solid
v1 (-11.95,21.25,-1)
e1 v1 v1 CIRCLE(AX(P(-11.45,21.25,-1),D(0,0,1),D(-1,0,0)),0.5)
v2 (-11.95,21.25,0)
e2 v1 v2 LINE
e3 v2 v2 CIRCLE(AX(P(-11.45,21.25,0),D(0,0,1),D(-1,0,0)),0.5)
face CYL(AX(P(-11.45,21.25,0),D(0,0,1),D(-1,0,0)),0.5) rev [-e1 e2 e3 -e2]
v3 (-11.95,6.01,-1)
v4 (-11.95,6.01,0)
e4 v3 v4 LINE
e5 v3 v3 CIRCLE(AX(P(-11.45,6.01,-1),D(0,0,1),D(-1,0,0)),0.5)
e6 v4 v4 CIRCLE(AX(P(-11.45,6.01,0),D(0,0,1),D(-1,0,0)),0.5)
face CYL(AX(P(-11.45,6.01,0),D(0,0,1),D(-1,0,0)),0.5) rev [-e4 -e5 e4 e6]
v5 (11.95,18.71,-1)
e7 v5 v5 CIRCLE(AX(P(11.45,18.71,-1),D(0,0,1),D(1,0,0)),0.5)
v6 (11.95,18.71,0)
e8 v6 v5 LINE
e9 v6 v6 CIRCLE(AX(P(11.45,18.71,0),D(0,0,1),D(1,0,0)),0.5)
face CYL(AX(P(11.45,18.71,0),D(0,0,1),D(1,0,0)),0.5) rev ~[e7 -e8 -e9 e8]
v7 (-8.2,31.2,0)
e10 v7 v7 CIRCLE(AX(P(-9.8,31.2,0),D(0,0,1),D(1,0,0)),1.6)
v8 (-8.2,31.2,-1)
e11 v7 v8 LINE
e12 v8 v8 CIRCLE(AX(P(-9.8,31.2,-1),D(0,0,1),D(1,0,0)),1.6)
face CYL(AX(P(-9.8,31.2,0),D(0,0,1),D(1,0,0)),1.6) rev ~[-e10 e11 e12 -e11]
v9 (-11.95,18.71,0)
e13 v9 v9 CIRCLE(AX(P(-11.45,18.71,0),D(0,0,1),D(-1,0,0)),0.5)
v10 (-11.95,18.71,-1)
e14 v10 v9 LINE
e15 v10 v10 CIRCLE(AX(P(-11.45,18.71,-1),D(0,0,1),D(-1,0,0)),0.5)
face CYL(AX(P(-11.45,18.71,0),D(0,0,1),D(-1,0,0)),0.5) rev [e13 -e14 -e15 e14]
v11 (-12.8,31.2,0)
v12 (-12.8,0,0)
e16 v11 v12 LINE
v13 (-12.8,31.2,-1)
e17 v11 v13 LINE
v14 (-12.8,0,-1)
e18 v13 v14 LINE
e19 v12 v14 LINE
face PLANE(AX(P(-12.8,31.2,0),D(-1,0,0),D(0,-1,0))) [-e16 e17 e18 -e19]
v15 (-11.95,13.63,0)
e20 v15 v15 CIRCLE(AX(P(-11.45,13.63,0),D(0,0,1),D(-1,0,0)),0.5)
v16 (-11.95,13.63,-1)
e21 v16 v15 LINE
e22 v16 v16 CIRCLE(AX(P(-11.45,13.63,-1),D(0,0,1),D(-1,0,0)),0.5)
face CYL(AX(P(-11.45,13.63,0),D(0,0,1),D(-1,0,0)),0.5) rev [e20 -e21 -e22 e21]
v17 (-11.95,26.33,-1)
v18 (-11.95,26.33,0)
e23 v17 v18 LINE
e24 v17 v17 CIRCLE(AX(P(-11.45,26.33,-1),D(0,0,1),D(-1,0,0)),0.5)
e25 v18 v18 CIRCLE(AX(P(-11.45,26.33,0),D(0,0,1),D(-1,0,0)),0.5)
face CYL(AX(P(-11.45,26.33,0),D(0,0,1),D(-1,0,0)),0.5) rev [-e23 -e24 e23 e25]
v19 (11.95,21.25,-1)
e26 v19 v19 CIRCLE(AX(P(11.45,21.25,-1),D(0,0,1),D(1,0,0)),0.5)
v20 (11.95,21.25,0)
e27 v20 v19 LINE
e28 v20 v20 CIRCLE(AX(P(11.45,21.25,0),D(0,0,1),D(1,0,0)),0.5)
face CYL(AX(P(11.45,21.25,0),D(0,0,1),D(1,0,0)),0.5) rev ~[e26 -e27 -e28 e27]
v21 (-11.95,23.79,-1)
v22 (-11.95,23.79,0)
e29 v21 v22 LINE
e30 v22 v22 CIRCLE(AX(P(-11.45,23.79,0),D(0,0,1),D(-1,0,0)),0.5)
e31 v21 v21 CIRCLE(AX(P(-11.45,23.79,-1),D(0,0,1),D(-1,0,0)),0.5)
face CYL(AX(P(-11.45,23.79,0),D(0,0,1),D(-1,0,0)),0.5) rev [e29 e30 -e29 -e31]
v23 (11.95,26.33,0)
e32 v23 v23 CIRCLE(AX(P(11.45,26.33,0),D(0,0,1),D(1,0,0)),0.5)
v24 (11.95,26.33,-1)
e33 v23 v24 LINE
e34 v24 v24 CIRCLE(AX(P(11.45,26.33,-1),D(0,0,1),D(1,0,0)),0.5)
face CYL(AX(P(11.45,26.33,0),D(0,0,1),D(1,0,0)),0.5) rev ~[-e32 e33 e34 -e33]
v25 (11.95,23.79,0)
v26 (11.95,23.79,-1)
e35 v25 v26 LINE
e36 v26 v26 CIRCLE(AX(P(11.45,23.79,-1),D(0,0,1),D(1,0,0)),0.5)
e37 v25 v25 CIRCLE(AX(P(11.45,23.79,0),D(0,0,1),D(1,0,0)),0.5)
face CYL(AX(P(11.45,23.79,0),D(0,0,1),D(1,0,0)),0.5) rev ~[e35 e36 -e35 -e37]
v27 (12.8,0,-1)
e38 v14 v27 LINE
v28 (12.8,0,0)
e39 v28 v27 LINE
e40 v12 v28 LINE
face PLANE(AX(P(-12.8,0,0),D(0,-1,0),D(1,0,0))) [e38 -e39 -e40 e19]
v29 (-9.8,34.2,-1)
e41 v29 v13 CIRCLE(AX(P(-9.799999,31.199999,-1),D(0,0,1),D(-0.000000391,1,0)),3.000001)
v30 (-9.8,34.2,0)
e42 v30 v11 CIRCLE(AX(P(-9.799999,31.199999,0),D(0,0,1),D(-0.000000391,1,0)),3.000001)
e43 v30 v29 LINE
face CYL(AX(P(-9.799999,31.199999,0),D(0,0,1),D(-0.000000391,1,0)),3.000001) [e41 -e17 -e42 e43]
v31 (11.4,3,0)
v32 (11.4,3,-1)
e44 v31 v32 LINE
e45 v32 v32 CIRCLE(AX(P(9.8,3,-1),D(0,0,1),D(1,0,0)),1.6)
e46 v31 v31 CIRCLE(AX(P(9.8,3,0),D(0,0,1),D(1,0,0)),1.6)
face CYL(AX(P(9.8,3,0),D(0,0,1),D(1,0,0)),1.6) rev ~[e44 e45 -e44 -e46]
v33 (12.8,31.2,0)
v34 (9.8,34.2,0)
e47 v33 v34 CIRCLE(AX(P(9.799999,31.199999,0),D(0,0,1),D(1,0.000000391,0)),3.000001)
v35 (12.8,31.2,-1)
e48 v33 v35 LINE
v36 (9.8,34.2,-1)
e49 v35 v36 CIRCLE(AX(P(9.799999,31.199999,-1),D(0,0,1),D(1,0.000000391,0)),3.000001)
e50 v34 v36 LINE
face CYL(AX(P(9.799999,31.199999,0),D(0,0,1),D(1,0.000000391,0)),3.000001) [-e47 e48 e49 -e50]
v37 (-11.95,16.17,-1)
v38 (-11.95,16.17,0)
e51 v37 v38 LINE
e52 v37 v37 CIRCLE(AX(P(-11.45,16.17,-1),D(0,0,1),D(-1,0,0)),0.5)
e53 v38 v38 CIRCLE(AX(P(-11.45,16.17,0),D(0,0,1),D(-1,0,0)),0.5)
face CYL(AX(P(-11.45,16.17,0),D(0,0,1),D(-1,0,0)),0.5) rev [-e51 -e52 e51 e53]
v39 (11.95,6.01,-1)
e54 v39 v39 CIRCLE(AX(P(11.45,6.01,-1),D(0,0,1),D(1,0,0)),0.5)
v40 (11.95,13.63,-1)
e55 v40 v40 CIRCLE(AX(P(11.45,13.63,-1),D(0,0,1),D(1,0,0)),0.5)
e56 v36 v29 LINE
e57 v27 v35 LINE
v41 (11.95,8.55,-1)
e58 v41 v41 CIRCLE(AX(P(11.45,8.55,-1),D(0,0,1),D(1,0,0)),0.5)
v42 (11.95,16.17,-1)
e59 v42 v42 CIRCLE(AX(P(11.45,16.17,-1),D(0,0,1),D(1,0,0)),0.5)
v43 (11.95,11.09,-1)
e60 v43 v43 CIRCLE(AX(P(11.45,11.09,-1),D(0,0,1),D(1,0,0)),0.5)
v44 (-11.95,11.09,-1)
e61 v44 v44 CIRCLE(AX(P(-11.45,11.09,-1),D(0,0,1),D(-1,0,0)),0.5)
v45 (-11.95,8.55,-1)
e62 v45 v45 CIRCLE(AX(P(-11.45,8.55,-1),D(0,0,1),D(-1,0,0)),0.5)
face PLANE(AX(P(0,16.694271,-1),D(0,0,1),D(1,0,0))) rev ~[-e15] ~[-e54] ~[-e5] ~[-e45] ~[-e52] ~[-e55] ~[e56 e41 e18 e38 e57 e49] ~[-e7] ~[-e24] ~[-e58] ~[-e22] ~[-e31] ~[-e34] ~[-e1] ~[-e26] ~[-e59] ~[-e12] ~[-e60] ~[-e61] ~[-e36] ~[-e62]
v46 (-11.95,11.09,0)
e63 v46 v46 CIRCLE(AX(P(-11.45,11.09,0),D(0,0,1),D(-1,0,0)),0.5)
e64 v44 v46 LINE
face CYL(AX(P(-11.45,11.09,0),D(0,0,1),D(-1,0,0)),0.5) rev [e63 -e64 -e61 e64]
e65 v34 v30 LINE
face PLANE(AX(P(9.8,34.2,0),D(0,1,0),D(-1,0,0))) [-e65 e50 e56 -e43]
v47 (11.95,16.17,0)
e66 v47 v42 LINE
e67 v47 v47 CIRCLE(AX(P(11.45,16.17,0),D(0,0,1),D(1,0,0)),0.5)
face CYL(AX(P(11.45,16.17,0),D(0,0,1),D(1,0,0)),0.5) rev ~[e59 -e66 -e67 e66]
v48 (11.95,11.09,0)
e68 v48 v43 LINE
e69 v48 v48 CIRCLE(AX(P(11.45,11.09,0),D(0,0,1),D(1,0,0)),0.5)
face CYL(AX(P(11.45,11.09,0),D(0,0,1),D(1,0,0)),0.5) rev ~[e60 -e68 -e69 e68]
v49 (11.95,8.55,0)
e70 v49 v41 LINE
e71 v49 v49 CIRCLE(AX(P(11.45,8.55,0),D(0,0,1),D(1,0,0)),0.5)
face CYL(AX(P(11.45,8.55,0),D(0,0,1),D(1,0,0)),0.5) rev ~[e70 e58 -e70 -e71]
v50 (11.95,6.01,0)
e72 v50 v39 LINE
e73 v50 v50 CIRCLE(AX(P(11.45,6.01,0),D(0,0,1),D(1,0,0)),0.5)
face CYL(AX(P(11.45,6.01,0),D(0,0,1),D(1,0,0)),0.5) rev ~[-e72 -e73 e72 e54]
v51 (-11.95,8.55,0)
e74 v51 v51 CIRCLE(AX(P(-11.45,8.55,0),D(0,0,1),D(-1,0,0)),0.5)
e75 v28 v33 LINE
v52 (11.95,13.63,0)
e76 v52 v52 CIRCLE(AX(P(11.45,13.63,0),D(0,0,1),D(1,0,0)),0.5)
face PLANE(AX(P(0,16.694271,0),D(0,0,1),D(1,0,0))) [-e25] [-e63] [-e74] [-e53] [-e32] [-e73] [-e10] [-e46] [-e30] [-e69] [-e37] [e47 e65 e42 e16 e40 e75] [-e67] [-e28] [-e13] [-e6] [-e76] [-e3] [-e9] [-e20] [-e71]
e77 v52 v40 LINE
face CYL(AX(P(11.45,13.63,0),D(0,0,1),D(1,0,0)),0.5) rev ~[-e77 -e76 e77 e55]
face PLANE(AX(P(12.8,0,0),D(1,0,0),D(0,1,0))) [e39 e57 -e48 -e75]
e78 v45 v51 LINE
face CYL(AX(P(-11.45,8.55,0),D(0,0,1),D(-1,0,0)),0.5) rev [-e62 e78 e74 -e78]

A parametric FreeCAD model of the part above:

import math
import FreeCAD as App
import Part
import Sketcher
from FreeCAD import Vector
Q = App.Units.Quantity

doc = App.newDocument("Part")
body = doc.addObject("PartDesign::Body", "Body")

# Sketch on XY plane
sketch1 = body.newObject("Sketcher::SketchObject", "Sketch")
sketch1.AttachmentSupport = (doc.getObject("XY_Plane"), [""])
sketch1.MapMode = "FlatFace"
sketch1.addGeometry(Part.LineSegment(Vector(9.8, 17.1, 0), Vector(-9.8, 17.1, 0)), False)
sketch1.addGeometry(Part.ArcOfCircle(Part.Circle(Vector(-9.8, 14.1, 0), Vector(0, 0, 1), 3), math.radians(90), math.radians(180)), False)
sketch1.addGeometry(Part.LineSegment(Vector(-12.8, 14.1, 0), Vector(-12.8, -17.1, 0)), False)
sketch1.addGeometry(Part.LineSegment(Vector(-12.8, -17.1, 0), Vector(12.8, -17.1, 0)), False)
sketch1.addGeometry(Part.LineSegment(Vector(12.8, -17.1, 0), Vector(12.8, 14.1, 0)), False)
sketch1.addGeometry(Part.ArcOfCircle(Part.Circle(Vector(9.8, 14.1, 0), Vector(0, 0, 1), 3), math.radians(0), math.radians(90)), False)
sketch1.addGeometry(Part.Circle(Vector(9.8, -14.1, 0), Vector(0, 0, 1), 1.6), False)
sketch1.addGeometry(Part.Circle(Vector(-9.8, 14.1, 0), Vector(0, 0, 1), 1.6), False)
sketch1.addConstraint(Sketcher.Constraint("Tangent", 0, 2, 1, 1))
sketch1.addConstraint(Sketcher.Constraint("Tangent", 1, 2, 2, 1))
sketch1.addConstraint(Sketcher.Constraint("Coincident", 2, 2, 3, 1))
sketch1.addConstraint(Sketcher.Constraint("Coincident", 3, 2, 4, 1))
sketch1.addConstraint(Sketcher.Constraint("Tangent", 4, 2, 5, 1))
sketch1.addConstraint(Sketcher.Constraint("Tangent", 5, 2, 0, 1))
sketch1.addConstraint(Sketcher.Constraint("Horizontal", 0))
sketch1.addConstraint(Sketcher.Constraint("Vertical", 2))
sketch1.addConstraint(Sketcher.Constraint("Horizontal", 3))
sketch1.addConstraint(Sketcher.Constraint("Vertical", 4))
sketch1.addConstraint(Sketcher.Constraint("Coincident", 7, 3, 1, 3))
sketch1.addConstraint(Sketcher.Constraint("Equal", 1, 5))
sketch1.addConstraint(Sketcher.Constraint("Equal", 6, 7))
sketch1.addConstraint(Sketcher.Constraint("Symmetric", 1, 3, 6, 3, -1, 1))
sketch1.addConstraint(Sketcher.Constraint("Vertical", 5, 3, 6, 3))
sketch1.addConstraint(Sketcher.Constraint("Radius", 1, Q("3.000001 mm")))
sketch1.addConstraint(Sketcher.Constraint("Diameter", 6, Q("3.2 mm")))
sketch1.addConstraint(Sketcher.Constraint("DistanceX", 0, 2, 0, 1, Q("19.6 mm")))
sketch1.addConstraint(Sketcher.Constraint("DistanceY", 2, 2, 2, 1, Q("31.2 mm")))
sketch1.addConstraint(Sketcher.Constraint("DistanceY", 2, 2, 6, 3, Q("3 mm")))
pad1 = body.newObject("PartDesign::Pad", "Pad")
pad1.Profile = sketch1
pad1.Length = 1
pad1.Reversed = True

# Sketch on XY plane
sketch2 = body.newObject("Sketcher::SketchObject", "Sketch001")
sketch2.AttachmentSupport = (doc.getObject("XY_Plane"), [""])
sketch2.MapMode = "FlatFace"
sketch2.addGeometry(Part.Circle(Vector(11.4, -11.1, 0), Vector(0, 0, 1), 0.5), False)
sketch2.addConstraint(Sketcher.Constraint("Diameter", 0, Q("1 mm")))
sketch2.addConstraint(Sketcher.Constraint("DistanceX", -1, 1, 0, 3, Q("11.45 mm")))
sketch2.addConstraint(Sketcher.Constraint("DistanceY", 0, 3, -1, 1, Q("11.09 mm")))
pocket1 = body.newObject("PartDesign::Pocket", "Pocket")
pocket1.Profile = sketch2
pocket1.Type = "ThroughAll"
pocket1.Midplane = True

# Sketch on XY plane
sketch3 = body.newObject("Sketcher::SketchObject", "Sketch002")
sketch3.AttachmentSupport = (doc.getObject("XY_Plane"), [""])
sketch3.MapMode = "FlatFace"
sketch3.addGeometry(Part.Circle(Vector(11.4, -8.6, 0), Vector(0, 0, 1), 0.5), False)
sketch3.addConstraint(Sketcher.Constraint("Diameter", 0, Q("1 mm")))
sketch3.addConstraint(Sketcher.Constraint("DistanceX", -1, 1, 0, 3, Q("11.45 mm")))
sketch3.addConstraint(Sketcher.Constraint("DistanceY", 0, 3, -1, 1, Q("8.55 mm")))
pocket2 = body.newObject("PartDesign::Pocket", "Pocket001")
pocket2.Profile = sketch3
pocket2.Type = "ThroughAll"
pocket2.Midplane = True

# Sketch on XY plane
sketch4 = body.newObject("Sketcher::SketchObject", "Sketch003")
sketch4.AttachmentSupport = (doc.getObject("XY_Plane"), [""])
sketch4.MapMode = "FlatFace"
sketch4.addGeometry(Part.Circle(Vector(11.4, -6, 0), Vector(0, 0, 1), 0.5), False)
sketch4.addConstraint(Sketcher.Constraint("Diameter", 0, Q("1 mm")))
sketch4.addConstraint(Sketcher.Constraint("DistanceX", -1, 1, 0, 3, Q("11.45 mm")))
sketch4.addConstraint(Sketcher.Constraint("DistanceY", 0, 3, -1, 1, Q("6.01 mm")))
pocket3 = body.newObject("PartDesign::Pocket", "Pocket002")
pocket3.Profile = sketch4
pocket3.Type = "ThroughAll"
pocket3.Midplane = True

# Sketch on XY plane
sketch5 = body.newObject("Sketcher::SketchObject", "Sketch004")
sketch5.AttachmentSupport = (doc.getObject("XY_Plane"), [""])
sketch5.MapMode = "FlatFace"
sketch5.addGeometry(Part.Circle(Vector(11.4, -3.5, 0), Vector(0, 0, 1), 0.5), False)
sketch5.addConstraint(Sketcher.Constraint("Diameter", 0, Q("1 mm")))
sketch5.addConstraint(Sketcher.Constraint("DistanceX", -1, 1, 0, 3, Q("11.45 mm")))
sketch5.addConstraint(Sketcher.Constraint("DistanceY", 0, 3, -1, 1, Q("3.47 mm")))
pocket4 = body.newObject("PartDesign::Pocket", "Pocket003")
pocket4.Profile = sketch5
pocket4.Type = "ThroughAll"
pocket4.Midplane = True

# Sketch on XY plane
sketch6 = body.newObject("Sketcher::SketchObject", "Sketch005")
sketch6.AttachmentSupport = (doc.getObject("XY_Plane"), [""])
sketch6.MapMode = "FlatFace"
sketch6.addGeometry(Part.Circle(Vector(11.4, -0.9, 0), Vector(0, 0, 1), 0.5), False)
sketch6.addConstraint(Sketcher.Constraint("Diameter", 0, Q("1 mm")))
sketch6.addConstraint(Sketcher.Constraint("DistanceX", -1, 1, 0, 3, Q("11.45 mm")))
sketch6.addConstraint(Sketcher.Constraint("DistanceY", 0, 3, -1, 1, Q("0.93 mm")))
pocket5 = body.newObject("PartDesign::Pocket", "Pocket004")
pocket5.Profile = sketch6
pocket5.Type = "ThroughAll"
pocket5.Midplane = True

# Sketch on XY plane
sketch7 = body.newObject("Sketcher::SketchObject", "Sketch006")
sketch7.AttachmentSupport = (doc.getObject("XY_Plane"), [""])
sketch7.MapMode = "FlatFace"
sketch7.addGeometry(Part.Circle(Vector(11.4, 1.6, 0), Vector(0, 0, 1), 0.5), False)
sketch7.addConstraint(Sketcher.Constraint("Diameter", 0, Q("1 mm")))
sketch7.addConstraint(Sketcher.Constraint("DistanceX", -1, 1, 0, 3, Q("11.45 mm")))
sketch7.addConstraint(Sketcher.Constraint("DistanceY", -1, 1, 0, 3, Q("1.61 mm")))
pocket6 = body.newObject("PartDesign::Pocket", "Pocket005")
pocket6.Profile = sketch7
pocket6.Type = "ThroughAll"
pocket6.Midplane = True

# Sketch on XY plane
sketch8 = body.newObject("Sketcher::SketchObject", "Sketch007")
sketch8.AttachmentSupport = (doc.getObject("XY_Plane"), [""])
sketch8.MapMode = "FlatFace"
sketch8.addGeometry(Part.Circle(Vector(11.4, 4.2, 0), Vector(0, 0, 1), 0.5), False)
sketch8.addConstraint(Sketcher.Constraint("Diameter", 0, Q("1 mm")))
sketch8.addConstraint(Sketcher.Constraint("DistanceX", -1, 1, 0, 3, Q("11.45 mm")))
sketch8.addConstraint(Sketcher.Constraint("DistanceY", -1, 1, 0, 3, Q("4.15 mm")))
pocket7 = body.newObject("PartDesign::Pocket", "Pocket006")
pocket7.Profile = sketch8
pocket7.Type = "ThroughAll"
pocket7.Midplane = True

# Sketch on XY plane
sketch9 = body.newObject("Sketcher::SketchObject", "Sketch008")
sketch9.AttachmentSupport = (doc.getObject("XY_Plane"), [""])
sketch9.MapMode = "FlatFace"
sketch9.addGeometry(Part.Circle(Vector(11.4, 6.7, 0), Vector(0, 0, 1), 0.5), False)
sketch9.addConstraint(Sketcher.Constraint("Diameter", 0, Q("1 mm")))
sketch9.addConstraint(Sketcher.Constraint("DistanceX", -1, 1, 0, 3, Q("11.45 mm")))
sketch9.addConstraint(Sketcher.Constraint("DistanceY", -1, 1, 0, 3, Q("6.69 mm")))
pocket8 = body.newObject("PartDesign::Pocket", "Pocket007")
pocket8.Profile = sketch9
pocket8.Type = "ThroughAll"
pocket8.Midplane = True

# Sketch on XY plane
sketch10 = body.newObject("Sketcher::SketchObject", "Sketch009")
sketch10.AttachmentSupport = (doc.getObject("XY_Plane"), [""])
sketch10.MapMode = "FlatFace"
sketch10.addGeometry(Part.Circle(Vector(11.4, 9.2, 0), Vector(0, 0, 1), 0.5), False)
sketch10.addConstraint(Sketcher.Constraint("Diameter", 0, Q("1 mm")))
sketch10.addConstraint(Sketcher.Constraint("DistanceX", -1, 1, 0, 3, Q("11.45 mm")))
sketch10.addConstraint(Sketcher.Constraint("DistanceY", -1, 1, 0, 3, Q("9.23 mm")))
pocket9 = body.newObject("PartDesign::Pocket", "Pocket008")
pocket9.Profile = sketch10
pocket9.Type = "ThroughAll"
pocket9.Midplane = True
doc.recompute()

mirrored = body.newObject("PartDesign::Mirrored", "Mirrored")
mirrored.Originals = [pocket1, pocket2, pocket3, pocket4, pocket5, pocket6, pocket7, pocket8, pocket9]
mirrored.MirrorPlane = (doc.getObject("YZ_Plane"), [""])
body.Tip = mirrored
body2 = doc.addObject("PartDesign::Body", "Body001")
doc.recompute()

body.Placement = App.Placement(Vector(0, 17.1, 0), App.Rotation(Vector(0, 0, 1), 0))
boolean = body2.newObject("PartDesign::Boolean", "Boolean")
boolean.Type = "Fuse"
boolean.addObjects([body])

doc.recompute()
